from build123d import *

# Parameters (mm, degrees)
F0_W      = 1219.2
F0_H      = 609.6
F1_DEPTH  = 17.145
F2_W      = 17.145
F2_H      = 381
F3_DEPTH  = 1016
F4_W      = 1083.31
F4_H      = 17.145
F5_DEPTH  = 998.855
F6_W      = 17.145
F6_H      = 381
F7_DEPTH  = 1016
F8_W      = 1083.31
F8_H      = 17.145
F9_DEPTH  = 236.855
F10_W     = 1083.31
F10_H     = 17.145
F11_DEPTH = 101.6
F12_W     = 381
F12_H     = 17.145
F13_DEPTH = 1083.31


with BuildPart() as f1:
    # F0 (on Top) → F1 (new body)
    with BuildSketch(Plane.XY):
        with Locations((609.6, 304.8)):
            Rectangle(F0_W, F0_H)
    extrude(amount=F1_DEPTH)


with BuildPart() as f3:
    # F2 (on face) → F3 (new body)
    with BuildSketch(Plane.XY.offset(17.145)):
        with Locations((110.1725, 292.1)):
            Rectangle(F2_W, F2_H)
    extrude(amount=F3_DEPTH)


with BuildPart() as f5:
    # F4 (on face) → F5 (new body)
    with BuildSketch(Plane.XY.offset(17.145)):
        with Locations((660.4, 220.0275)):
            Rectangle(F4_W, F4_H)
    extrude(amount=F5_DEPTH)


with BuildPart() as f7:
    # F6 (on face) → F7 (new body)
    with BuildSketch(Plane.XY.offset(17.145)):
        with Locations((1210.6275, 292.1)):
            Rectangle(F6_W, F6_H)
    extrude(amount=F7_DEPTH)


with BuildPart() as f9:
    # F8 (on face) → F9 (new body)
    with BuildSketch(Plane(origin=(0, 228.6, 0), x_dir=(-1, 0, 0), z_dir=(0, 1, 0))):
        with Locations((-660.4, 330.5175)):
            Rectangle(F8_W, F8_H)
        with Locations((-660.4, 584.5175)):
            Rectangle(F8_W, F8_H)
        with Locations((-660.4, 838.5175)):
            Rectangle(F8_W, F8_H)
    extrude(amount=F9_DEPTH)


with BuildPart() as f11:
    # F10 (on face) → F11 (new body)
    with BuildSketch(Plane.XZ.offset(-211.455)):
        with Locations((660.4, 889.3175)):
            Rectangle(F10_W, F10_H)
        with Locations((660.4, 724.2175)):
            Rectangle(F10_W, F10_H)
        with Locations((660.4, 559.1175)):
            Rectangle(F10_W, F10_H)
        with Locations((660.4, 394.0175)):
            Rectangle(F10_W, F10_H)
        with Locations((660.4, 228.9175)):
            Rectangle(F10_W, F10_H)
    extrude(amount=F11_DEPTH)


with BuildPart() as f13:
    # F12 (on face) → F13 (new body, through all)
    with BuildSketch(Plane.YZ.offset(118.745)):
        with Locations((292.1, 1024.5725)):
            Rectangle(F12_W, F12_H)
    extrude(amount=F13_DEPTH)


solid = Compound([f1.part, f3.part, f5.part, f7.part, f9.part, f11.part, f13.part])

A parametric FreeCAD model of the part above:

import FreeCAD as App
import Part
import Sketcher

V = App.Vector
Q = App.Units.Quantity

doc = App.newDocument("Part")
params = doc.addObject("Spreadsheet::Sheet", "Params")
for row, (alias, value) in enumerate([
    ("sketch1_width", "48 in"),
    ("sketch1_height", "24 in"),
    ("pad1_length", "0.675 in"),
    ("sketch2_height", "15 in"),
    ("sketch2_width", "0.675 in"),
    ("pad2_length", "40 in"),
    ("sketch3_width", "42.65 in"),
    ("sketch3_height", "0.675 in"),
    ("pad3_length", "39.325 in"),
    ("sketch4_height", "15 in"),
    ("sketch4_width", "0.675 in"),
    ("pad4_length", "40 in"),
    ("sketch5_width", "42.65 in"),
    ("sketch5_height", "0.675 in"),
    ("pad5_length", "9.325 in"),
    ("sketch6_width", "42.65 in"),
    ("sketch6_height", "0.675 in"),
    ("pad6_length", "4 in"),
    ("sketch7_width", "15 in"),
    ("sketch7_height", "0.675 in"),
    ("pad7_length", "42.65 in"),
], start=1):
    params.set(f"A{row}", alias)
    params.set(f"B{row}", "=" + value)
    params.setAlias(f"B{row}", alias)

body = doc.addObject("PartDesign::Body", "Body")

# Sketch on XY plane
sketch1 = doc.addObject("Sketcher::SketchObject", "Sketch")
body.addObject(sketch1)
sketch1.AttachmentSupport = (doc.XY_Plane, [""])
sketch1.MapMode = "FlatFace"
sketch1.addGeometry(Part.LineSegment(V(0, 610, 0), V(0, 0, 0)), False)
sketch1.addGeometry(Part.LineSegment(V(0, 0, 0), V(1219, 0, 0)), False)
sketch1.addGeometry(Part.LineSegment(V(1219, 0, 0), V(1219, 610, 0)), False)
sketch1.addGeometry(Part.LineSegment(V(1219, 610, 0), V(0, 610, 0)), False)
sketch1.addConstraint(Sketcher.Constraint("Coincident", 0, 2, 1, 1))
sketch1.addConstraint(Sketcher.Constraint("Coincident", 1, 2, 2, 1))
sketch1.addConstraint(Sketcher.Constraint("Coincident", 2, 2, 3, 1))
sketch1.addConstraint(Sketcher.Constraint("Coincident", 3, 2, 0, 1))
sketch1.addConstraint(Sketcher.Constraint("Vertical", 0))
sketch1.addConstraint(Sketcher.Constraint("Horizontal", 1))
sketch1.addConstraint(Sketcher.Constraint("Vertical", 2))
sketch1.addConstraint(Sketcher.Constraint("Horizontal", 3))
sketch1.addConstraint(Sketcher.Constraint("Coincident", 0, 2, -1, 1))
sketch1.addConstraint(Sketcher.Constraint("DistanceX", 1, 1, 1, 2, Q("48 in")))
sketch1.addConstraint(Sketcher.Constraint("DistanceY", 0, 2, 0, 1, Q("24 in")))
sketch1.setExpression("Constraints[9]", "Params.sketch1_width")
sketch1.setExpression("Constraints[10]", "Params.sketch1_height")
pad1 = doc.addObject("PartDesign::Pad", "Pad")
body.addObject(pad1)
pad1.Profile = sketch1
pad1.setExpression("Length", "Params.pad1_length")
body2 = doc.addObject("PartDesign::Body", "Body001")

# Sketch on XY plane
sketch2 = doc.addObject("Sketcher::SketchObject", "Sketch001")
body2.addObject(sketch2)
sketch2.AttachmentSupport = (doc.getObject("XY_Plane001"), [""])
sketch2.MapMode = "FlatFace"
sketch2.AttachmentOffset = App.Placement(V(0, 0, 0.675 * 25.4), App.Rotation())
sketch2.addGeometry(Part.LineSegment(V(102, 483, 0), V(102, 102, 0)), False)
sketch2.addGeometry(Part.LineSegment(V(102, 102, 0), V(119, 102, 0)), False)
sketch2.addGeometry(Part.LineSegment(V(119, 102, 0), V(119, 483, 0)), False)
sketch2.addGeometry(Part.LineSegment(V(119, 483, 0), V(102, 483, 0)), False)
sketch2.addConstraint(Sketcher.Constraint("Coincident", 0, 2, 1, 1))
sketch2.addConstraint(Sketcher.Constraint("Coincident", 1, 2, 2, 1))
sketch2.addConstraint(Sketcher.Constraint("Coincident", 2, 2, 3, 1))
sketch2.addConstraint(Sketcher.Constraint("Coincident", 3, 2, 0, 1))
sketch2.addConstraint(Sketcher.Constraint("Vertical", 0))
sketch2.addConstraint(Sketcher.Constraint("Horizontal", 1))
sketch2.addConstraint(Sketcher.Constraint("Vertical", 2))
sketch2.addConstraint(Sketcher.Constraint("Horizontal", 3))
sketch2.addConstraint(Sketcher.Constraint("DistanceY", 0, 2, 0, 1, Q("15 in")))
sketch2.addConstraint(Sketcher.Constraint("DistanceX", -1, 1, 0, 2, Q("4 in")))
sketch2.addConstraint(Sketcher.Constraint("DistanceY", -1, 1, 0, 2, Q("4 in")))
sketch2.addConstraint(Sketcher.Constraint("DistanceX", 1, 1, 1, 2, Q("0.675 in")))
sketch2.setExpression("Constraints[8]", "Params.sketch2_height")
sketch2.setExpression("Constraints[11]", "Params.sketch2_width")
pad2 = doc.addObject("PartDesign::Pad", "Pad001")
body2.addObject(pad2)
pad2.Profile = sketch2
pad2.setExpression("Length", "Params.pad2_length")
body3 = doc.addObject("PartDesign::Body", "Body002")

# Sketch on XY plane
sketch3 = doc.addObject("Sketcher::SketchObject", "Sketch002")
body3.addObject(sketch3)
sketch3.AttachmentSupport = (doc.getObject("XY_Plane002"), [""])
sketch3.MapMode = "FlatFace"
sketch3.AttachmentOffset = App.Placement(V(0, 0, 0.675 * 25.4), App.Rotation())
sketch3.addGeometry(Part.LineSegment(V(119, 229, 0), V(119, 211, 0)), False)
sketch3.addGeometry(Part.LineSegment(V(119, 211, 0), V(1202, 211, 0)), False)
sketch3.addGeometry(Part.LineSegment(V(1202, 211, 0), V(1202, 229, 0)), False)
sketch3.addGeometry(Part.LineSegment(V(1202, 229, 0), V(119, 229, 0)), False)
sketch3.addConstraint(Sketcher.Constraint("Coincident", 0, 2, 1, 1))
sketch3.addConstraint(Sketcher.Constraint("Coincident", 1, 2, 2, 1))
sketch3.addConstraint(Sketcher.Constraint("Coincident", 2, 2, 3, 1))
sketch3.addConstraint(Sketcher.Constraint("Coincident", 3, 2, 0, 1))
sketch3.addConstraint(Sketcher.Constraint("Vertical", 0))
sketch3.addConstraint(Sketcher.Constraint("Horizontal", 1))
sketch3.addConstraint(Sketcher.Constraint("Vertical", 2))
sketch3.addConstraint(Sketcher.Constraint("Horizontal", 3))
sketch3.addConstraint(Sketcher.Constraint("DistanceY", -1, 1, 2, 2, Q("9 in")))
sketch3.addConstraint(Sketcher.Constraint("DistanceX", 1, 1, 1, 2, Q("42.65 in")))
sketch3.addConstraint(Sketcher.Constraint("DistanceY", 0, 2, 0, 1, Q("0.675 in")))
sketch3.addConstraint(Sketcher.Constraint("DistanceX", -1, 1, 0, 2, Q("4.675 in")))
sketch3.setExpression("Constraints[9]", "Params.sketch3_width")
sketch3.setExpression("Constraints[10]", "Params.sketch3_height")
pad3 = doc.addObject("PartDesign::Pad", "Pad002")
body3.addObject(pad3)
pad3.Profile = sketch3
pad3.setExpression("Length", "Params.pad3_length")
body4 = doc.addObject("PartDesign::Body", "Body003")

# Sketch on XY plane
sketch4 = doc.addObject("Sketcher::SketchObject", "Sketch003")
body4.addObject(sketch4)
sketch4.AttachmentSupport = (doc.getObject("XY_Plane003"), [""])
sketch4.MapMode = "FlatFace"
sketch4.AttachmentOffset = App.Placement(V(0, 0, 0.675 * 25.4), App.Rotation())
sketch4.addGeometry(Part.LineSegment(V(1202, 483, 0), V(1202, 102, 0)), False)
sketch4.addGeometry(Part.LineSegment(V(1202, 102, 0), V(1219, 102, 0)), False)
sketch4.addGeometry(Part.LineSegment(V(1219, 102, 0), V(1219, 483, 0)), False)
sketch4.addGeometry(Part.LineSegment(V(1219, 483, 0), V(1202, 483, 0)), False)
sketch4.addConstraint(Sketcher.Constraint("Coincident", 0, 2, 1, 1))
sketch4.addConstraint(Sketcher.Constraint("Coincident", 1, 2, 2, 1))
sketch4.addConstraint(Sketcher.Constraint("Coincident", 2, 2, 3, 1))
sketch4.addConstraint(Sketcher.Constraint("Coincident", 3, 2, 0, 1))
sketch4.addConstraint(Sketcher.Constraint("Vertical", 0))
sketch4.addConstraint(Sketcher.Constraint("Horizontal", 1))
sketch4.addConstraint(Sketcher.Constraint("Vertical", 2))
sketch4.addConstraint(Sketcher.Constraint("Horizontal", 3))
sketch4.addConstraint(Sketcher.Constraint("DistanceY", 0, 2, 0, 1, Q("15 in")))
sketch4.addConstraint(Sketcher.Constraint("DistanceY", -1, 1, 0, 2, Q("4 in")))
sketch4.addConstraint(Sketcher.Constraint("DistanceX", -1, 1, 1, 2, Q("48 in")))
sketch4.addConstraint(Sketcher.Constraint("DistanceX", 1, 1, 1, 2, Q("0.675 in")))
sketch4.setExpression("Constraints[8]", "Params.sketch4_height")
sketch4.setExpression("Constraints[11]", "Params.sketch4_width")
pad4 = doc.addObject("PartDesign::Pad", "Pad003")
body4.addObject(pad4)
pad4.Profile = sketch4
pad4.setExpression("Length", "Params.pad4_length")
body5 = doc.addObject("PartDesign::Body", "Body004")
body5.AllowCompound = True

# Sketch on XZ plane
sketch5 = doc.addObject("Sketcher::SketchObject", "Sketch004")
body5.addObject(sketch5)
sketch5.AttachmentSupport = (doc.getObject("XZ_Plane004"), [""])
sketch5.MapMode = "FlatFace"
sketch5.AttachmentOffset = App.Placement(V(0, 0, -9 * 25.4), App.Rotation())
sketch5.addGeometry(Part.LineSegment(V(1202, 339, 0), V(1202, 322, 0)), False)
sketch5.addGeometry(Part.LineSegment(V(1202, 322, 0), V(119, 322, 0)), False)
sketch5.addGeometry(Part.LineSegment(V(119, 322, 0), V(119, 339, 0)), False)
sketch5.addGeometry(Part.LineSegment(V(119, 339, 0), V(1202, 339, 0)), False)
sketch5.addGeometry(Part.LineSegment(V(1202, 593, 0), V(1202, 576, 0)), False)
sketch5.addGeometry(Part.LineSegment(V(1202, 576, 0), V(119, 576, 0)), False)
sketch5.addGeometry(Part.LineSegment(V(119, 576, 0), V(119, 593, 0)), False)
sketch5.addGeometry(Part.LineSegment(V(119, 593, 0), V(1202, 593, 0)), False)
sketch5.addGeometry(Part.LineSegment(V(1202, 847, 0), V(1202, 830, 0)), False)
sketch5.addGeometry(Part.LineSegment(V(1202, 830, 0), V(119, 830, 0)), False)
sketch5.addGeometry(Part.LineSegment(V(119, 830, 0), V(119, 847, 0)), False)
sketch5.addGeometry(Part.LineSegment(V(119, 847, 0), V(1202, 847, 0)), False)
sketch5.addConstraint(Sketcher.Constraint("Coincident", 0, 2, 1, 1))
sketch5.addConstraint(Sketcher.Constraint("Coincident", 1, 2, 2, 1))
sketch5.addConstraint(Sketcher.Constraint("Coincident", 2, 2, 3, 1))
sketch5.addConstraint(Sketcher.Constraint("Coincident", 3, 2, 0, 1))
sketch5.addConstraint(Sketcher.Constraint("Coincident", 4, 2, 5, 1))
sketch5.addConstraint(Sketcher.Constraint("Coincident", 5, 2, 6, 1))
sketch5.addConstraint(Sketcher.Constraint("Coincident", 6, 2, 7, 1))
sketch5.addConstraint(Sketcher.Constraint("Coincident", 7, 2, 4, 1))
sketch5.addConstraint(Sketcher.Constraint("Coincident", 8, 2, 9, 1))
sketch5.addConstraint(Sketcher.Constraint("Coincident", 9, 2, 10, 1))
sketch5.addConstraint(Sketcher.Constraint("Coincident", 10, 2, 11, 1))
sketch5.addConstraint(Sketcher.Constraint("Coincident", 11, 2, 8, 1))
sketch5.addConstraint(Sketcher.Constraint("Vertical", 0))
sketch5.addConstraint(Sketcher.Constraint("Horizontal", 1))
sketch5.addConstraint(Sketcher.Constraint("Vertical", 2))
sketch5.addConstraint(Sketcher.Constraint("Horizontal", 3))
sketch5.addConstraint(Sketcher.Constraint("Vertical", 4))
sketch5.addConstraint(Sketcher.Constraint("Horizontal", 5))
sketch5.addConstraint(Sketcher.Constraint("Vertical", 6))
sketch5.addConstraint(Sketcher.Constraint("Horizontal", 7))
sketch5.addConstraint(Sketcher.Constraint("Vertical", 8))
sketch5.addConstraint(Sketcher.Constraint("Horizontal", 9))
sketch5.addConstraint(Sketcher.Constraint("Vertical", 10))
sketch5.addConstraint(Sketcher.Constraint("Horizontal", 11))
sketch5.addConstraint(Sketcher.Constraint("Vertical", 3, 2, 4, 2))
sketch5.addConstraint(Sketcher.Constraint("Vertical", 2, 2, 5, 2))
sketch5.addConstraint(Sketcher.Constraint("Vertical", 7, 2, 8, 2))
sketch5.addConstraint(Sketcher.Constraint("Vertical", 6, 2, 9, 2))
sketch5.addConstraint(Sketcher.Constraint("Equal", 2, 4))
sketch5.addConstraint(Sketcher.Constraint("Equal", 6, 8))
sketch5.addConstraint(Sketcher.Constraint("DistanceY", 0, 2, 4, 2, Q("10 in")))
sketch5.addConstraint(Sketcher.Constraint("DistanceY", 4, 2, 8, 2, Q("10 in")))
sketch5.addConstraint(Sketcher.Constraint("DistanceX", 1, 2, 1, 1, Q("42.65 in")))
sketch5.addConstraint(Sketcher.Constraint("DistanceY", 0, 2, 0, 1, Q("0.675 in")))
sketch5.addConstraint(Sketcher.Constraint("DistanceY", -1, 1, 2, 2, Q("13.35 in")))
sketch5.addConstraint(Sketcher.Constraint("DistanceX", -1, 1, 0, 2, Q("47.325 in")))
sketch5.setExpression("Constraints[32]", "Params.sketch5_width")
sketch5.setExpression("Constraints[33]", "Params.sketch5_height")
pad5 = doc.addObject("PartDesign::Pad", "Pad004")
body5.addObject(pad5)
pad5.Profile = sketch5
pad5.setExpression("Length", "Params.pad5_length")
pad5.Reversed = True
body6 = doc.addObject("PartDesign::Body", "Body005")
body6.AllowCompound = True

# Sketch on XZ plane
sketch6 = doc.addObject("Sketcher::SketchObject", "Sketch005")
body6.addObject(sketch6)
sketch6.AttachmentSupport = (doc.getObject("XZ_Plane005"), [""])
sketch6.MapMode = "FlatFace"
sketch6.AttachmentOffset = App.Placement(V(0, 0, -8.325 * 25.4), App.Rotation())
sketch6.addGeometry(Part.LineSegment(V(119, 898, 0), V(119, 881, 0)), False)
sketch6.addGeometry(Part.LineSegment(V(119, 881, 0), V(1202, 881, 0)), False)
sketch6.addGeometry(Part.LineSegment(V(1202, 881, 0), V(1202, 898, 0)), False)
sketch6.addGeometry(Part.LineSegment(V(1202, 898, 0), V(119, 898, 0)), False)
sketch6.addGeometry(Part.LineSegment(V(119, 733, 0), V(119, 716, 0)), False)
sketch6.addGeometry(Part.LineSegment(V(119, 716, 0), V(1202, 716, 0)), False)
sketch6.addGeometry(Part.LineSegment(V(1202, 716, 0), V(1202, 733, 0)), False)
sketch6.addGeometry(Part.LineSegment(V(1202, 733, 0), V(119, 733, 0)), False)
sketch6.addGeometry(Part.LineSegment(V(119, 568, 0), V(119, 551, 0)), False)
sketch6.addGeometry(Part.LineSegment(V(119, 551, 0), V(1202, 551, 0)), False)
sketch6.addGeometry(Part.LineSegment(V(1202, 551, 0), V(1202, 568, 0)), False)
sketch6.addGeometry(Part.LineSegment(V(1202, 568, 0), V(119, 568, 0)), False)
sketch6.addGeometry(Part.LineSegment(V(119, 403, 0), V(119, 385, 0)), False)
sketch6.addGeometry(Part.LineSegment(V(119, 385, 0), V(1202, 385, 0)), False)
sketch6.addGeometry(Part.LineSegment(V(1202, 385, 0), V(1202, 403, 0)), False)
sketch6.addGeometry(Part.LineSegment(V(1202, 403, 0), V(119, 403, 0)), False)
sketch6.addGeometry(Part.LineSegment(V(119, 237, 0), V(119, 220, 0)), False)
sketch6.addGeometry(Part.LineSegment(V(119, 220, 0), V(1202, 220, 0)), False)
sketch6.addGeometry(Part.LineSegment(V(1202, 220, 0), V(1202, 237, 0)), False)
sketch6.addGeometry(Part.LineSegment(V(1202, 237, 0), V(119, 237, 0)), False)
sketch6.addConstraint(Sketcher.Constraint("Coincident", 0, 2, 1, 1))
sketch6.addConstraint(Sketcher.Constraint("Coincident", 1, 2, 2, 1))
sketch6.addConstraint(Sketcher.Constraint("Coincident", 2, 2, 3, 1))
sketch6.addConstraint(Sketcher.Constraint("Coincident", 3, 2, 0, 1))
sketch6.addConstraint(Sketcher.Constraint("Coincident", 4, 2, 5, 1))
sketch6.addConstraint(Sketcher.Constraint("Coincident", 5, 2, 6, 1))
sketch6.addConstraint(Sketcher.Constraint("Coincident", 6, 2, 7, 1))
sketch6.addConstraint(Sketcher.Constraint("Coincident", 7, 2, 4, 1))
sketch6.addConstraint(Sketcher.Constraint("Coincident", 8, 2, 9, 1))
sketch6.addConstraint(Sketcher.Constraint("Coincident", 9, 2, 10, 1))
sketch6.addConstraint(Sketcher.Constraint("Coincident", 10, 2, 11, 1))
sketch6.addConstraint(Sketcher.Constraint("Coincident", 11, 2, 8, 1))
sketch6.addConstraint(Sketcher.Constraint("Coincident", 12, 2, 13, 1))
sketch6.addConstraint(Sketcher.Constraint("Coincident", 13, 2, 14, 1))
sketch6.addConstraint(Sketcher.Constraint("Coincident", 14, 2, 15, 1))
sketch6.addConstraint(Sketcher.Constraint("Coincident", 15, 2, 12, 1))
sketch6.addConstraint(Sketcher.Constraint("Coincident", 16, 2, 17, 1))
sketch6.addConstraint(Sketcher.Constraint("Coincident", 17, 2, 18, 1))
sketch6.addConstraint(Sketcher.Constraint("Coincident", 18, 2, 19, 1))
sketch6.addConstraint(Sketcher.Constraint("Coincident", 19, 2, 16, 1))
sketch6.addConstraint(Sketcher.Constraint("Vertical", 0))
sketch6.addConstraint(Sketcher.Constraint("Horizontal", 1))
sketch6.addConstraint(Sketcher.Constraint("Vertical", 2))
sketch6.addConstraint(Sketcher.Constraint("Horizontal", 3))
sketch6.addConstraint(Sketcher.Constraint("Vertical", 4))
sketch6.addConstraint(Sketcher.Constraint("Horizontal", 5))
sketch6.addConstraint(Sketcher.Constraint("Vertical", 6))
sketch6.addConstraint(Sketcher.Constraint("Horizontal", 7))
sketch6.addConstraint(Sketcher.Constraint("Vertical", 8))
sketch6.addConstraint(Sketcher.Constraint("Horizontal", 9))
sketch6.addConstraint(Sketcher.Constraint("Vertical", 10))
sketch6.addConstraint(Sketcher.Constraint("Horizontal", 11))
sketch6.addConstraint(Sketcher.Constraint("Vertical", 12))
sketch6.addConstraint(Sketcher.Constraint("Horizontal", 13))
sketch6.addConstraint(Sketcher.Constraint("Vertical", 14))
sketch6.addConstraint(Sketcher.Constraint("Horizontal", 15))
sketch6.addConstraint(Sketcher.Constraint("Vertical", 16))
sketch6.addConstraint(Sketcher.Constraint("Horizontal", 17))
sketch6.addConstraint(Sketcher.Constraint("Vertical", 18))
sketch6.addConstraint(Sketcher.Constraint("Horizontal", 19))
sketch6.addConstraint(Sketcher.Constraint("Vertical", 3, 2, 4, 2))
sketch6.addConstraint(Sketcher.Constraint("Vertical", 2, 2, 5, 2))
sketch6.addConstraint(Sketcher.Constraint("Vertical", 7, 2, 8, 2))
sketch6.addConstraint(Sketcher.Constraint("Vertical", 6, 2, 9, 2))
sketch6.addConstraint(Sketcher.Constraint("Vertical", 11, 2, 12, 2))
sketch6.addConstraint(Sketcher.Constraint("Vertical", 10, 2, 13, 2))
sketch6.addConstraint(Sketcher.Constraint("Vertical", 15, 2, 16, 2))
sketch6.addConstraint(Sketcher.Constraint("Vertical", 14, 2, 17, 2))
sketch6.addConstraint(Sketcher.Constraint("Equal", 2, 4))
sketch6.addConstraint(Sketcher.Constraint("Equal", 6, 8))
sketch6.addConstraint(Sketcher.Constraint("Equal", 10, 12))
sketch6.addConstraint(Sketcher.Constraint("Equal", 14, 16))
sketch6.addConstraint(Sketcher.Constraint("DistanceY", 8, 2, 0, 2, Q("13 in")))
sketch6.addConstraint(Sketcher.Constraint("DistanceY", 12, 2, 4, 2, Q("13 in")))
sketch6.addConstraint(Sketcher.Constraint("DistanceY", 16, 2, 8, 2, Q("13 in")))
sketch6.addConstraint(Sketcher.Constraint("DistanceX", 1, 1, 1, 2, Q("42.65 in")))
sketch6.addConstraint(Sketcher.Constraint("DistanceY", 4, 2, 0, 2, Q("6.5 in")))
sketch6.addConstraint(Sketcher.Constraint("DistanceY", 0, 2, 0, 1, Q("0.675 in")))
sketch6.addConstraint(Sketcher.Constraint("DistanceY", -1, 1, 2, 2, Q("35.35 in")))
sketch6.addConstraint(Sketcher.Constraint("DistanceX", -1, 1, 0, 2, Q("4.675 in")))
sketch6.setExpression("Constraints[55]", "Params.sketch6_width")
sketch6.setExpression("Constraints[57]", "Params.sketch6_height")
pad6 = doc.addObject("PartDesign::Pad", "Pad005")
body6.addObject(pad6)
pad6.Profile = sketch6
pad6.setExpression("Length", "Params.pad6_length")
body7 = doc.addObject("PartDesign::Body", "Body006")

# Sketch on YZ plane
sketch7 = doc.addObject("Sketcher::SketchObject", "Sketch006")
body7.addObject(sketch7)
sketch7.AttachmentSupport = (doc.getObject("YZ_Plane006"), [""])
sketch7.MapMode = "FlatFace"
sketch7.AttachmentOffset = App.Placement(V(0, 0, 4.675 * 25.4), App.Rotation())
sketch7.addGeometry(Part.LineSegment(V(102, 1033, 0), V(102, 1016, 0)), False)
sketch7.addGeometry(Part.LineSegment(V(102, 1016, 0), V(483, 1016, 0)), False)
sketch7.addGeometry(Part.LineSegment(V(483, 1016, 0), V(483, 1033, 0)), False)
sketch7.addGeometry(Part.LineSegment(V(483, 1033, 0), V(102, 1033, 0)), False)
sketch7.addConstraint(Sketcher.Constraint("Coincident", 0, 2, 1, 1))
sketch7.addConstraint(Sketcher.Constraint("Coincident", 1, 2, 2, 1))
sketch7.addConstraint(Sketcher.Constraint("Coincident", 2, 2, 3, 1))
sketch7.addConstraint(Sketcher.Constraint("Coincident", 3, 2, 0, 1))
sketch7.addConstraint(Sketcher.Constraint("Vertical", 0))
sketch7.addConstraint(Sketcher.Constraint("Horizontal", 1))
sketch7.addConstraint(Sketcher.Constraint("Vertical", 2))
sketch7.addConstraint(Sketcher.Constraint("Horizontal", 3))
sketch7.addConstraint(Sketcher.Constraint("DistanceX", 1, 1, 1, 2, Q("15 in")))
sketch7.addConstraint(Sketcher.Constraint("DistanceX", -1, 1, 0, 2, Q("4 in")))
sketch7.addConstraint(Sketcher.Constraint("DistanceY", -1, 1, 0, 2, Q("40 in")))
sketch7.addConstraint(Sketcher.Constraint("DistanceY", 0, 2, 0, 1, Q("0.675 in")))
sketch7.setExpression("Constraints[8]", "Params.sketch7_width")
sketch7.setExpression("Constraints[11]", "Params.sketch7_height")
pad7 = doc.addObject("PartDesign::Pad", "Pad006")
body7.addObject(pad7)
pad7.Profile = sketch7
pad7.setExpression("Length", "Params.pad7_length")

doc.recompute()
